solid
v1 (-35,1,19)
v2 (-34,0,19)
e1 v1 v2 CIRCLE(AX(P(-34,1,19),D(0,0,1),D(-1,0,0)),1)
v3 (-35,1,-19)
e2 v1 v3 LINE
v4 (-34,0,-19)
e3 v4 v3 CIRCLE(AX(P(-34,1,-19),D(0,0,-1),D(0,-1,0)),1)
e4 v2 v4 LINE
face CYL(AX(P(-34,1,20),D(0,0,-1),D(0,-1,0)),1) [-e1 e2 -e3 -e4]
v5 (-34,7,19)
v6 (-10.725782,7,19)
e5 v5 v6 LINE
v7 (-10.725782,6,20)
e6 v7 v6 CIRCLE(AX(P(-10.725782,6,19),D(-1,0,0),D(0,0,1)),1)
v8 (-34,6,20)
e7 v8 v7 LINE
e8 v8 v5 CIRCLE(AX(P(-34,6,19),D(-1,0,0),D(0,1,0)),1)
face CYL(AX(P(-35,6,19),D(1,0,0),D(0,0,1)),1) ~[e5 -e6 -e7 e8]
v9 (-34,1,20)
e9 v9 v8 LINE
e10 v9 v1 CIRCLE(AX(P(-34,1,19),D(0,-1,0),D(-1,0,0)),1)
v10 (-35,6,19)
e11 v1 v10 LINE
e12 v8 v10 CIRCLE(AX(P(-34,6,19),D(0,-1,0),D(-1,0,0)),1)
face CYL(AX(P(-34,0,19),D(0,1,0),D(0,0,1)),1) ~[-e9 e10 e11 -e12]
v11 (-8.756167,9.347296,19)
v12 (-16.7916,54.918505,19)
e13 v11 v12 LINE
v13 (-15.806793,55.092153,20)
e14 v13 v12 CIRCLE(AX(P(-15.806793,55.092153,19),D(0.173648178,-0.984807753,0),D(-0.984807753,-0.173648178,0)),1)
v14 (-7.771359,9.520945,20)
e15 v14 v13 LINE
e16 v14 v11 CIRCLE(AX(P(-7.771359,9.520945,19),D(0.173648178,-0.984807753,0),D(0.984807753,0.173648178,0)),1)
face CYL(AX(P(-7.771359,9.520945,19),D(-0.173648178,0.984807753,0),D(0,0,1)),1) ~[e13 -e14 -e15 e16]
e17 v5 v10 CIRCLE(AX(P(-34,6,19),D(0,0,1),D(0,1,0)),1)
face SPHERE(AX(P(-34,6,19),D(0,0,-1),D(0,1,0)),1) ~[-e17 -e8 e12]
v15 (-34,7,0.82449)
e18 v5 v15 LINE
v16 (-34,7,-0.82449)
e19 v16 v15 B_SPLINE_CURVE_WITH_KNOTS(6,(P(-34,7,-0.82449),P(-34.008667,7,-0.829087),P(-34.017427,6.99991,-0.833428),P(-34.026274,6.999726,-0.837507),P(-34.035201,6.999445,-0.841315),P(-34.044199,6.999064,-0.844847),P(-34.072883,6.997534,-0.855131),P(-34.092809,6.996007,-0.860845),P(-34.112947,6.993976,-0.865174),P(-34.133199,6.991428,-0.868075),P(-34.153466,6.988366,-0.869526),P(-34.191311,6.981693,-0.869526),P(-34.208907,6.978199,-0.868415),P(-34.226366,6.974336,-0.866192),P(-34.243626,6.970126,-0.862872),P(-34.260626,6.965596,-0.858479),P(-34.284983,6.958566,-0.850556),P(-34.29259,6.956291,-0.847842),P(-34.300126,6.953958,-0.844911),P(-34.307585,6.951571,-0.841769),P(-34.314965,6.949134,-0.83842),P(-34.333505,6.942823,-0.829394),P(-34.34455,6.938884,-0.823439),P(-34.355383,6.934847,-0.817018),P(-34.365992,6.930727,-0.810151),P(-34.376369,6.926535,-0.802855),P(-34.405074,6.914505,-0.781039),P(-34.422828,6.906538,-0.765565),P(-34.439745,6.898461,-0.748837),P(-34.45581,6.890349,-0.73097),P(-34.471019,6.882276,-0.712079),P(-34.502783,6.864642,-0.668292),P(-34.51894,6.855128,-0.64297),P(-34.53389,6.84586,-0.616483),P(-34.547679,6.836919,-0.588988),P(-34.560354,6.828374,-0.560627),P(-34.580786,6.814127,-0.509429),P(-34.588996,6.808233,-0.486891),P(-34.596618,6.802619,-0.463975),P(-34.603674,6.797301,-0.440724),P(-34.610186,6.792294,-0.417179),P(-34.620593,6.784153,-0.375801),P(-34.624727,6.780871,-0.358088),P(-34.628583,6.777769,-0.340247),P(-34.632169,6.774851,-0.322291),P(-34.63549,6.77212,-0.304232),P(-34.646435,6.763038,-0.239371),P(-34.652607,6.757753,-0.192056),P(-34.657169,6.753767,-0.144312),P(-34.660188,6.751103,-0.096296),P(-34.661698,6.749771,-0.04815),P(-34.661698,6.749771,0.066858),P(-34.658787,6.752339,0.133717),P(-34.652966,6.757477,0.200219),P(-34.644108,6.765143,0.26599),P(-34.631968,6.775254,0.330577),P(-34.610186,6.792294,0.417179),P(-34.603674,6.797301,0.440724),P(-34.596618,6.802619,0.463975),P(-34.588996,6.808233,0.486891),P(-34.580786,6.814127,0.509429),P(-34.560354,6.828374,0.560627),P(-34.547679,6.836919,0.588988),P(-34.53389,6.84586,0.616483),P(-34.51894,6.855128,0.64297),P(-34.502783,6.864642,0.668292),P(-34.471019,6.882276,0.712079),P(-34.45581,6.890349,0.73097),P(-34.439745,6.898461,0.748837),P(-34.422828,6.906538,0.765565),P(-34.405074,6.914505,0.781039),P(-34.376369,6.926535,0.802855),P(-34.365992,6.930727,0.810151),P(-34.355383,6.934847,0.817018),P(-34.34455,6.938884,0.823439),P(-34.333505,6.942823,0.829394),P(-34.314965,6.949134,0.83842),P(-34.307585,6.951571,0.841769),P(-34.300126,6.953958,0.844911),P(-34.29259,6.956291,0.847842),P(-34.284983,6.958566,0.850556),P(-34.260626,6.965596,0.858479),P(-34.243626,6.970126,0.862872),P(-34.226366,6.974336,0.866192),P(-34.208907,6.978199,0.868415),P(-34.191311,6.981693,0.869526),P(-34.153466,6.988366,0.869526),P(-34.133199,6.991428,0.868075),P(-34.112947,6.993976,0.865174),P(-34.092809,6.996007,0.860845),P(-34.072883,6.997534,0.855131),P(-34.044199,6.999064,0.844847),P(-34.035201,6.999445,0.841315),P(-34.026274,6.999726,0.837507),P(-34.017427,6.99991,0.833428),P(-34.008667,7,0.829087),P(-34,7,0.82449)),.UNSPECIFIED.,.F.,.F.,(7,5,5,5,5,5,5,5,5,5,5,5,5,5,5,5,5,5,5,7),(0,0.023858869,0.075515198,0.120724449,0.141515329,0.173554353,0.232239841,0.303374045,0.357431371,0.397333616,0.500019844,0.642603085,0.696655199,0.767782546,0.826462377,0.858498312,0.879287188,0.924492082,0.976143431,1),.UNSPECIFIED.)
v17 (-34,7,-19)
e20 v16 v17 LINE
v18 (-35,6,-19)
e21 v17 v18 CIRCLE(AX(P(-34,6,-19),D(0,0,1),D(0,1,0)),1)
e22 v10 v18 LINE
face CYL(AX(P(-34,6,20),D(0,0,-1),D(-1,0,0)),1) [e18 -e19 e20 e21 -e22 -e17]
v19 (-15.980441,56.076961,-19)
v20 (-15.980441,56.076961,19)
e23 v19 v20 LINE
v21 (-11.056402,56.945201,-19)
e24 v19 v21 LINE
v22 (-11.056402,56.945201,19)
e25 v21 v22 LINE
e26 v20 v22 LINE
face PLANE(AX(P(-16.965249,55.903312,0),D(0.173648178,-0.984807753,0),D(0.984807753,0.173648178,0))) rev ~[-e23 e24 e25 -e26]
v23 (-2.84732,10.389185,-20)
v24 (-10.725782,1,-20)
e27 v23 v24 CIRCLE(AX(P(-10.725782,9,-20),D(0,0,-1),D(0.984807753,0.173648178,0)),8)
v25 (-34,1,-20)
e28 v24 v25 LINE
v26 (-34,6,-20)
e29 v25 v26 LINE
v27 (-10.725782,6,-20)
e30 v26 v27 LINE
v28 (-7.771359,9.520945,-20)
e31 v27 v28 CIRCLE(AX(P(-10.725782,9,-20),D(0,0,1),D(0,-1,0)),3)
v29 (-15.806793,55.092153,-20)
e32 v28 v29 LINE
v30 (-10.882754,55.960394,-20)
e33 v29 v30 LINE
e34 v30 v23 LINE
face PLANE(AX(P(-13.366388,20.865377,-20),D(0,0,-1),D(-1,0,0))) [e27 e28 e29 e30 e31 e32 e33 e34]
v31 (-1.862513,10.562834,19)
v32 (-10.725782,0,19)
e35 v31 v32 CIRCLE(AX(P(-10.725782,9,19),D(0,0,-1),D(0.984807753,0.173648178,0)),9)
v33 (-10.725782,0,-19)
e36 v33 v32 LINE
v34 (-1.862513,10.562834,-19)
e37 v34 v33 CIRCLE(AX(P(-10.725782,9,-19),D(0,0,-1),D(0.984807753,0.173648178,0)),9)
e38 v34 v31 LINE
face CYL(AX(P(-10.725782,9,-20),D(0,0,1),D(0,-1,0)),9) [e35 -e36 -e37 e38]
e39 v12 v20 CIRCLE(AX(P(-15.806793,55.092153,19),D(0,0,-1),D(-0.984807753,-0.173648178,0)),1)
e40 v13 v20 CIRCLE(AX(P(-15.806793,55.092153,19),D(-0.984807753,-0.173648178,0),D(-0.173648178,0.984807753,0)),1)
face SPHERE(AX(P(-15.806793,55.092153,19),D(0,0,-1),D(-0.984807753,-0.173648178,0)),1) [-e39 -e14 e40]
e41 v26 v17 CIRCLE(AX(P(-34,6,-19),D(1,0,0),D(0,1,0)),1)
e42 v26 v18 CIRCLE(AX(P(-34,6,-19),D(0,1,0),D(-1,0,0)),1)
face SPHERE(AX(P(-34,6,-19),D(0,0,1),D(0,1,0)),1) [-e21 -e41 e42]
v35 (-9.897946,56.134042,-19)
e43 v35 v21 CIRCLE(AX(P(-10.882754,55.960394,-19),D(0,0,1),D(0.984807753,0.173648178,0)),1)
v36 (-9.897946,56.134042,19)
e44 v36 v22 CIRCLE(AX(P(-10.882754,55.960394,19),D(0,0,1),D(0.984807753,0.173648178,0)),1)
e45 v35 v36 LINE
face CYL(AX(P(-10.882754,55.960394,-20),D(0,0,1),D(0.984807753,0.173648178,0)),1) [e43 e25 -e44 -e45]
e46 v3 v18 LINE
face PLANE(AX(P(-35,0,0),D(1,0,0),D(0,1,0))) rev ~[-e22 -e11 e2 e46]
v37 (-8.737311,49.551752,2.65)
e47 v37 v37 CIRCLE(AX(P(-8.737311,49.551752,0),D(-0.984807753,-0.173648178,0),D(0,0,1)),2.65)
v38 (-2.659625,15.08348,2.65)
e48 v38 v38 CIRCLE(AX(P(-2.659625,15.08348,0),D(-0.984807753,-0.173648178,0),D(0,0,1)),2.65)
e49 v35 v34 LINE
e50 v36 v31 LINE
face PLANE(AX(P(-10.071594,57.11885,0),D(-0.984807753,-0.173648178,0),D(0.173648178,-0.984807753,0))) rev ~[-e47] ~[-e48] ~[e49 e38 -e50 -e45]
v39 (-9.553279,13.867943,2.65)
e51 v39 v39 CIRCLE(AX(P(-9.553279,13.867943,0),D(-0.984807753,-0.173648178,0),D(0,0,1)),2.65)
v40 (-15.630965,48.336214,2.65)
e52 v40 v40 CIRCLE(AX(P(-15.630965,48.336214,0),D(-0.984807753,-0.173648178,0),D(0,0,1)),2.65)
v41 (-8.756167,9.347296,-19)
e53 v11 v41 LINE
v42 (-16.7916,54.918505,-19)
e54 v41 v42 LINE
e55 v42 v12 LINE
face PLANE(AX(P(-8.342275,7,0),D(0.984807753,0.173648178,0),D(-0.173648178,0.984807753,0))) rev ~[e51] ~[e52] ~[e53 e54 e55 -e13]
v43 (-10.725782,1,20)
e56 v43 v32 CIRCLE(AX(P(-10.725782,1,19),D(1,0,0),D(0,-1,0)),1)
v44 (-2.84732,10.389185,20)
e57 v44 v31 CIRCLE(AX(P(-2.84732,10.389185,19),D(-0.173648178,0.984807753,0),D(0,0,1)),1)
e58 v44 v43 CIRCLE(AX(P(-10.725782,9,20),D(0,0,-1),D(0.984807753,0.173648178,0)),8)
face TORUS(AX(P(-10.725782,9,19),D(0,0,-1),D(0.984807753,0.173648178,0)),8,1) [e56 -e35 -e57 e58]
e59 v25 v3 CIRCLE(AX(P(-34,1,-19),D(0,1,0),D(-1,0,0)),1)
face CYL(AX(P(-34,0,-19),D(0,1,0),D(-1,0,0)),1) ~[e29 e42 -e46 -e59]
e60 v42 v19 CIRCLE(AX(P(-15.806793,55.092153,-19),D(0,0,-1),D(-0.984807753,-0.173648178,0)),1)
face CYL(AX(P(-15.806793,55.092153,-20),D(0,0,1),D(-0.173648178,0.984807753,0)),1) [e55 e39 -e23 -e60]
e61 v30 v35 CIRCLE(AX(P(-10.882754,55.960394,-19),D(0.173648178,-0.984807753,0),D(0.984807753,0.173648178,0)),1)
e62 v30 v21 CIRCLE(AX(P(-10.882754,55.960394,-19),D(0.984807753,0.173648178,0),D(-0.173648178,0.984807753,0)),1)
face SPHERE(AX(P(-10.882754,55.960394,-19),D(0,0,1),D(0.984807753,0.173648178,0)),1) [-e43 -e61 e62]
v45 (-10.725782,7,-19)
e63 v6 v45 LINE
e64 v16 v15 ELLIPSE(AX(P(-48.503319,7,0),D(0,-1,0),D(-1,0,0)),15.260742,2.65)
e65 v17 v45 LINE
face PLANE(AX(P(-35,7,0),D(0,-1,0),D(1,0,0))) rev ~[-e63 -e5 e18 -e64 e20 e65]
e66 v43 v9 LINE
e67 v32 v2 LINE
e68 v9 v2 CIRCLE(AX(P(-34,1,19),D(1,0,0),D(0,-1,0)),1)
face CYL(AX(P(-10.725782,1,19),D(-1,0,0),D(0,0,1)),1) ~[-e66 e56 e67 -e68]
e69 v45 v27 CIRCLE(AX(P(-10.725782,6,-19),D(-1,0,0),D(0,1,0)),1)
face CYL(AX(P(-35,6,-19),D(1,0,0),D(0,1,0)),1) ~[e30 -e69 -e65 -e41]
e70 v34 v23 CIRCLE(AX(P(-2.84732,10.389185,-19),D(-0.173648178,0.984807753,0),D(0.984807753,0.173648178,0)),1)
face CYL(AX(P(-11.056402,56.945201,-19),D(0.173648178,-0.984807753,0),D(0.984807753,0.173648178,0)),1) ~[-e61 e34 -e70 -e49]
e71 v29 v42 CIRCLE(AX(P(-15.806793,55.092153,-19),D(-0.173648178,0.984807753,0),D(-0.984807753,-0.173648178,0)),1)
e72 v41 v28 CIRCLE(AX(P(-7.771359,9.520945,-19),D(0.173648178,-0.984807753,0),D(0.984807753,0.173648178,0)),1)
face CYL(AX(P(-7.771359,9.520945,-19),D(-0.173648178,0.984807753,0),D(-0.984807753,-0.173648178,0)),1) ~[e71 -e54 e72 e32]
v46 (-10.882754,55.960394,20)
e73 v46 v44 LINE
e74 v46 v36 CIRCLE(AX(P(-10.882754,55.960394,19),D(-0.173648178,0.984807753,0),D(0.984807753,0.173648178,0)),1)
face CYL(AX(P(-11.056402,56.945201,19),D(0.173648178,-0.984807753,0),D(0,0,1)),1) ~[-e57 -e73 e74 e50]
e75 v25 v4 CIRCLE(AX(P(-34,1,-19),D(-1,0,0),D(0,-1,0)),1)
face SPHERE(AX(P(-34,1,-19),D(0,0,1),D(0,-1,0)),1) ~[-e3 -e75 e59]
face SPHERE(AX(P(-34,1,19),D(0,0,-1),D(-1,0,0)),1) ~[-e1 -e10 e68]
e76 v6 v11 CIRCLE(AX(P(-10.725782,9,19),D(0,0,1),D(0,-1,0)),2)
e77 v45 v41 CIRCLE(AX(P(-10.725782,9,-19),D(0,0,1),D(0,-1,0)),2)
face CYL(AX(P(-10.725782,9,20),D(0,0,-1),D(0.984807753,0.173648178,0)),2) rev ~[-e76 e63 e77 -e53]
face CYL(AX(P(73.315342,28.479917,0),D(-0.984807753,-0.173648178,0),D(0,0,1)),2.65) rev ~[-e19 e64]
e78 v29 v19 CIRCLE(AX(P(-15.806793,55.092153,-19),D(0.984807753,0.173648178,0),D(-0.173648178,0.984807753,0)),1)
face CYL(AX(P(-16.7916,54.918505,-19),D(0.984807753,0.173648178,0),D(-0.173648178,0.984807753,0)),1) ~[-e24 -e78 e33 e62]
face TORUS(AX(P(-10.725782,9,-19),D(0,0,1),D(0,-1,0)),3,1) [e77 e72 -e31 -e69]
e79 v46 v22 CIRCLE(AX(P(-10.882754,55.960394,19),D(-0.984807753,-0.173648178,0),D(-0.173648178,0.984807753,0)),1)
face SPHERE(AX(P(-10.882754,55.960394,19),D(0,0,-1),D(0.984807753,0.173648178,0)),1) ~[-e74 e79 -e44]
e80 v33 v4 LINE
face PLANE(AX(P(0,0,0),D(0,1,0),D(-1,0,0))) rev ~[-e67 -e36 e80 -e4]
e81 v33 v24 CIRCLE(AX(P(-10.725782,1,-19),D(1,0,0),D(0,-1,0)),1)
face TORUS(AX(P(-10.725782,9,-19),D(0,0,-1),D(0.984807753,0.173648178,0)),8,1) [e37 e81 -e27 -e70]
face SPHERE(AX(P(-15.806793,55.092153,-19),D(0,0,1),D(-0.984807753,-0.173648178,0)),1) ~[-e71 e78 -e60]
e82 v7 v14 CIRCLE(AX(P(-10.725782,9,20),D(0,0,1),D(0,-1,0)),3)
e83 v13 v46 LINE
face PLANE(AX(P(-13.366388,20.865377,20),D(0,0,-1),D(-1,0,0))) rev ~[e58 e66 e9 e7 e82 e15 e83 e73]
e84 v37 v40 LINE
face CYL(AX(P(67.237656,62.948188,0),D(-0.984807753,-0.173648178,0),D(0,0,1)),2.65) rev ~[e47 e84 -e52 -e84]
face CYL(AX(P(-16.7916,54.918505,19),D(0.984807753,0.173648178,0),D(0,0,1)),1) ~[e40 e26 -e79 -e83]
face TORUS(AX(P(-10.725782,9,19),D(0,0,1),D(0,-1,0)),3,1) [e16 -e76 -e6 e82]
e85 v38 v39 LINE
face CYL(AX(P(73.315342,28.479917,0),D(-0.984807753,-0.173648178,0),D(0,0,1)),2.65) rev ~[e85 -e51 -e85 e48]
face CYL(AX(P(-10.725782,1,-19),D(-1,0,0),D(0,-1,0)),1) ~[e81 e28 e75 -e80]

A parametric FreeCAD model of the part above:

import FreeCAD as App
import Part
import Sketcher
Q = App.Units.Quantity


def edges_at(feature, points):
    """Names of the edges that pass closest to the given points."""
    edges = feature.Shape.Edges
    near = lambda p: min(range(len(edges)), key=lambda i: edges[i].distToShape(Part.Vertex(*p))[0])
    return sorted({f"Edge{near(p) + 1}" for p in points})

doc = App.newDocument("Part")
params = doc.addObject("Spreadsheet::Sheet", "Params")
for row, (alias, value) in enumerate([
    ("sketch1_width", "35 mm"),
    ("sketch1_height", "7 mm"),
    ("sketch1_length", "58 mm"),
    ("sketch1_length2", "7 mm"),
    ("pad1_length", "40 mm"),
    ("fillet_radius", "2 mm"),
    ("fillet2_radius", "9 mm"),
    ("fillet3_radius", "1 mm"),
    ("sketch2_diameter", "5.3 mm"),
    ("hole_diameter", "5.3 mm"),
], start=1):
    params.set(f"A{row}", alias)
    params.set(f"B{row}", "=" + value)
    params.setAlias(f"B{row}", alias)

body = doc.addObject("PartDesign::Body", "Body")

# Sketch on XY plane
sketch1 = body.newObject("Sketcher::SketchObject", "Sketch")
sketch1.AttachmentSupport = (doc.getObject("XY_Plane"), [""])
sketch1.MapMode = "FlatFace"
sketch1.addGeometry([
    Part.LineSegment(App.Vector(-35, 0, 0), App.Vector(0, 0, 0)),  # 0
    Part.LineSegment(App.Vector(0, 0, 0), App.Vector(-10, 57, 0)),  # 1
    Part.LineSegment(App.Vector(-10, 57, 0), App.Vector(-17, 56, 0)),  # 2
    Part.LineSegment(App.Vector(-17, 56, 0), App.Vector(-8, 7, 0)),  # 3
    Part.LineSegment(App.Vector(-8, 7, 0), App.Vector(-35, 7, 0)),  # 4
    Part.LineSegment(App.Vector(-35, 7, 0), App.Vector(-35, 0, 0)),  # 5
], False)
sketch1.addConstraint([
    Sketcher.Constraint("Coincident", 0, 2, 1, 1),
    Sketcher.Constraint("Coincident", 1, 2, 2, 1),
    Sketcher.Constraint("Coincident", 2, 2, 3, 1),
    Sketcher.Constraint("Coincident", 3, 2, 4, 1),
    Sketcher.Constraint("Coincident", 4, 2, 5, 1),
    Sketcher.Constraint("Coincident", 5, 2, 0, 1),
    Sketcher.Constraint("Horizontal", 0),
    Sketcher.Constraint("Horizontal", 4),
    Sketcher.Constraint("Vertical", 5),
    Sketcher.Constraint("Coincident", 0, 2, -1, 1),
    Sketcher.Constraint("Perpendicular", 1, 2),
    Sketcher.Constraint("Perpendicular", 2, 3),
    Sketcher.Constraint("DistanceX", 0, 1, 0, 2, Q("35 mm")),
    Sketcher.Constraint("DistanceY", 5, 2, 5, 1, Q("7 mm")),
    Sketcher.Constraint("Angle", 1, Q("100 deg")),
    Sketcher.Constraint("Distance", 1, Q("58 mm")),
    Sketcher.Constraint("Distance", 2, Q("7 mm")),
])
sketch1.setExpression("Constraints[12]", "Params.sketch1_width")
sketch1.setExpression("Constraints[13]", "Params.sketch1_height")
sketch1.setExpression("Constraints[15]", "Params.sketch1_length")
sketch1.setExpression("Constraints[16]", "Params.sketch1_length2")
pad1 = body.newObject("PartDesign::Pad", "Pad")
pad1.Profile = sketch1
pad1.setExpression("Length", "Params.pad1_length")
pad1.Midplane = True
doc.recompute()

fillet = body.newObject("PartDesign::Fillet", "Fillet")
fillet.Base = (pad1, edges_at(pad1, [(-8.342, 7, 0)]))
fillet.setExpression("Radius", "Params.fillet_radius")
doc.recompute()

fillet2 = body.newObject("PartDesign::Fillet", "Fillet001")
fillet2.Base = (fillet, edges_at(fillet, [(0, 0, 0)]))
fillet2.setExpression("Radius", "Params.fillet2_radius")
doc.recompute()

fillet3 = body.newObject("PartDesign::Fillet", "Fillet002")
fillet3.Base = (fillet2, ["Edge1"])
fillet3.UseAllEdges = True
fillet3.setExpression("Radius", "Params.fillet3_radius")

# Sketch on an angled plane
sketch2 = body.newObject("Sketcher::SketchObject", "Sketch001")
sketch2.Placement = App.Placement(App.Vector(0, 0, 0), App.Rotation(App.Vector(0, 0, -1), App.Vector(-0.173648178, 0.984807753, 0), App.Vector(0.984807753, 0.173648178, 0), "ZXY"))
sketch2.addGeometry([
    Part.Circle(App.Vector(0, 50.3, 0), App.Vector(0, 0, 1), 2.6),
    Part.Circle(App.Vector(0, 15.3, 0), App.Vector(0, 0, 1), 2.6),
], False)
sketch2.addConstraint([
    Sketcher.Constraint("Equal", 0, 1),
    Sketcher.Constraint("PointOnObject", 0, 3, -2),
    Sketcher.Constraint("PointOnObject", 1, 3, -2),
    Sketcher.Constraint("Diameter", 0, Q("5.3 mm")),
    Sketcher.Constraint("DistanceY", 1, 3, 0, 3, Q("35 mm")),
    Sketcher.Constraint("DistanceY", -1, 1, 0, 3, Q("50.316167 mm")),
])
sketch2.setExpression("Constraints[3]", "Params.sketch2_diameter")
doc.recompute()
hole = body.newObject("PartDesign::Hole", "Hole")
hole.Profile = sketch2
hole.ThreadType = "None"
hole.setExpression("Diameter", "Params.hole_diameter")
hole.DepthType = "ThroughAll"

doc.recompute()
